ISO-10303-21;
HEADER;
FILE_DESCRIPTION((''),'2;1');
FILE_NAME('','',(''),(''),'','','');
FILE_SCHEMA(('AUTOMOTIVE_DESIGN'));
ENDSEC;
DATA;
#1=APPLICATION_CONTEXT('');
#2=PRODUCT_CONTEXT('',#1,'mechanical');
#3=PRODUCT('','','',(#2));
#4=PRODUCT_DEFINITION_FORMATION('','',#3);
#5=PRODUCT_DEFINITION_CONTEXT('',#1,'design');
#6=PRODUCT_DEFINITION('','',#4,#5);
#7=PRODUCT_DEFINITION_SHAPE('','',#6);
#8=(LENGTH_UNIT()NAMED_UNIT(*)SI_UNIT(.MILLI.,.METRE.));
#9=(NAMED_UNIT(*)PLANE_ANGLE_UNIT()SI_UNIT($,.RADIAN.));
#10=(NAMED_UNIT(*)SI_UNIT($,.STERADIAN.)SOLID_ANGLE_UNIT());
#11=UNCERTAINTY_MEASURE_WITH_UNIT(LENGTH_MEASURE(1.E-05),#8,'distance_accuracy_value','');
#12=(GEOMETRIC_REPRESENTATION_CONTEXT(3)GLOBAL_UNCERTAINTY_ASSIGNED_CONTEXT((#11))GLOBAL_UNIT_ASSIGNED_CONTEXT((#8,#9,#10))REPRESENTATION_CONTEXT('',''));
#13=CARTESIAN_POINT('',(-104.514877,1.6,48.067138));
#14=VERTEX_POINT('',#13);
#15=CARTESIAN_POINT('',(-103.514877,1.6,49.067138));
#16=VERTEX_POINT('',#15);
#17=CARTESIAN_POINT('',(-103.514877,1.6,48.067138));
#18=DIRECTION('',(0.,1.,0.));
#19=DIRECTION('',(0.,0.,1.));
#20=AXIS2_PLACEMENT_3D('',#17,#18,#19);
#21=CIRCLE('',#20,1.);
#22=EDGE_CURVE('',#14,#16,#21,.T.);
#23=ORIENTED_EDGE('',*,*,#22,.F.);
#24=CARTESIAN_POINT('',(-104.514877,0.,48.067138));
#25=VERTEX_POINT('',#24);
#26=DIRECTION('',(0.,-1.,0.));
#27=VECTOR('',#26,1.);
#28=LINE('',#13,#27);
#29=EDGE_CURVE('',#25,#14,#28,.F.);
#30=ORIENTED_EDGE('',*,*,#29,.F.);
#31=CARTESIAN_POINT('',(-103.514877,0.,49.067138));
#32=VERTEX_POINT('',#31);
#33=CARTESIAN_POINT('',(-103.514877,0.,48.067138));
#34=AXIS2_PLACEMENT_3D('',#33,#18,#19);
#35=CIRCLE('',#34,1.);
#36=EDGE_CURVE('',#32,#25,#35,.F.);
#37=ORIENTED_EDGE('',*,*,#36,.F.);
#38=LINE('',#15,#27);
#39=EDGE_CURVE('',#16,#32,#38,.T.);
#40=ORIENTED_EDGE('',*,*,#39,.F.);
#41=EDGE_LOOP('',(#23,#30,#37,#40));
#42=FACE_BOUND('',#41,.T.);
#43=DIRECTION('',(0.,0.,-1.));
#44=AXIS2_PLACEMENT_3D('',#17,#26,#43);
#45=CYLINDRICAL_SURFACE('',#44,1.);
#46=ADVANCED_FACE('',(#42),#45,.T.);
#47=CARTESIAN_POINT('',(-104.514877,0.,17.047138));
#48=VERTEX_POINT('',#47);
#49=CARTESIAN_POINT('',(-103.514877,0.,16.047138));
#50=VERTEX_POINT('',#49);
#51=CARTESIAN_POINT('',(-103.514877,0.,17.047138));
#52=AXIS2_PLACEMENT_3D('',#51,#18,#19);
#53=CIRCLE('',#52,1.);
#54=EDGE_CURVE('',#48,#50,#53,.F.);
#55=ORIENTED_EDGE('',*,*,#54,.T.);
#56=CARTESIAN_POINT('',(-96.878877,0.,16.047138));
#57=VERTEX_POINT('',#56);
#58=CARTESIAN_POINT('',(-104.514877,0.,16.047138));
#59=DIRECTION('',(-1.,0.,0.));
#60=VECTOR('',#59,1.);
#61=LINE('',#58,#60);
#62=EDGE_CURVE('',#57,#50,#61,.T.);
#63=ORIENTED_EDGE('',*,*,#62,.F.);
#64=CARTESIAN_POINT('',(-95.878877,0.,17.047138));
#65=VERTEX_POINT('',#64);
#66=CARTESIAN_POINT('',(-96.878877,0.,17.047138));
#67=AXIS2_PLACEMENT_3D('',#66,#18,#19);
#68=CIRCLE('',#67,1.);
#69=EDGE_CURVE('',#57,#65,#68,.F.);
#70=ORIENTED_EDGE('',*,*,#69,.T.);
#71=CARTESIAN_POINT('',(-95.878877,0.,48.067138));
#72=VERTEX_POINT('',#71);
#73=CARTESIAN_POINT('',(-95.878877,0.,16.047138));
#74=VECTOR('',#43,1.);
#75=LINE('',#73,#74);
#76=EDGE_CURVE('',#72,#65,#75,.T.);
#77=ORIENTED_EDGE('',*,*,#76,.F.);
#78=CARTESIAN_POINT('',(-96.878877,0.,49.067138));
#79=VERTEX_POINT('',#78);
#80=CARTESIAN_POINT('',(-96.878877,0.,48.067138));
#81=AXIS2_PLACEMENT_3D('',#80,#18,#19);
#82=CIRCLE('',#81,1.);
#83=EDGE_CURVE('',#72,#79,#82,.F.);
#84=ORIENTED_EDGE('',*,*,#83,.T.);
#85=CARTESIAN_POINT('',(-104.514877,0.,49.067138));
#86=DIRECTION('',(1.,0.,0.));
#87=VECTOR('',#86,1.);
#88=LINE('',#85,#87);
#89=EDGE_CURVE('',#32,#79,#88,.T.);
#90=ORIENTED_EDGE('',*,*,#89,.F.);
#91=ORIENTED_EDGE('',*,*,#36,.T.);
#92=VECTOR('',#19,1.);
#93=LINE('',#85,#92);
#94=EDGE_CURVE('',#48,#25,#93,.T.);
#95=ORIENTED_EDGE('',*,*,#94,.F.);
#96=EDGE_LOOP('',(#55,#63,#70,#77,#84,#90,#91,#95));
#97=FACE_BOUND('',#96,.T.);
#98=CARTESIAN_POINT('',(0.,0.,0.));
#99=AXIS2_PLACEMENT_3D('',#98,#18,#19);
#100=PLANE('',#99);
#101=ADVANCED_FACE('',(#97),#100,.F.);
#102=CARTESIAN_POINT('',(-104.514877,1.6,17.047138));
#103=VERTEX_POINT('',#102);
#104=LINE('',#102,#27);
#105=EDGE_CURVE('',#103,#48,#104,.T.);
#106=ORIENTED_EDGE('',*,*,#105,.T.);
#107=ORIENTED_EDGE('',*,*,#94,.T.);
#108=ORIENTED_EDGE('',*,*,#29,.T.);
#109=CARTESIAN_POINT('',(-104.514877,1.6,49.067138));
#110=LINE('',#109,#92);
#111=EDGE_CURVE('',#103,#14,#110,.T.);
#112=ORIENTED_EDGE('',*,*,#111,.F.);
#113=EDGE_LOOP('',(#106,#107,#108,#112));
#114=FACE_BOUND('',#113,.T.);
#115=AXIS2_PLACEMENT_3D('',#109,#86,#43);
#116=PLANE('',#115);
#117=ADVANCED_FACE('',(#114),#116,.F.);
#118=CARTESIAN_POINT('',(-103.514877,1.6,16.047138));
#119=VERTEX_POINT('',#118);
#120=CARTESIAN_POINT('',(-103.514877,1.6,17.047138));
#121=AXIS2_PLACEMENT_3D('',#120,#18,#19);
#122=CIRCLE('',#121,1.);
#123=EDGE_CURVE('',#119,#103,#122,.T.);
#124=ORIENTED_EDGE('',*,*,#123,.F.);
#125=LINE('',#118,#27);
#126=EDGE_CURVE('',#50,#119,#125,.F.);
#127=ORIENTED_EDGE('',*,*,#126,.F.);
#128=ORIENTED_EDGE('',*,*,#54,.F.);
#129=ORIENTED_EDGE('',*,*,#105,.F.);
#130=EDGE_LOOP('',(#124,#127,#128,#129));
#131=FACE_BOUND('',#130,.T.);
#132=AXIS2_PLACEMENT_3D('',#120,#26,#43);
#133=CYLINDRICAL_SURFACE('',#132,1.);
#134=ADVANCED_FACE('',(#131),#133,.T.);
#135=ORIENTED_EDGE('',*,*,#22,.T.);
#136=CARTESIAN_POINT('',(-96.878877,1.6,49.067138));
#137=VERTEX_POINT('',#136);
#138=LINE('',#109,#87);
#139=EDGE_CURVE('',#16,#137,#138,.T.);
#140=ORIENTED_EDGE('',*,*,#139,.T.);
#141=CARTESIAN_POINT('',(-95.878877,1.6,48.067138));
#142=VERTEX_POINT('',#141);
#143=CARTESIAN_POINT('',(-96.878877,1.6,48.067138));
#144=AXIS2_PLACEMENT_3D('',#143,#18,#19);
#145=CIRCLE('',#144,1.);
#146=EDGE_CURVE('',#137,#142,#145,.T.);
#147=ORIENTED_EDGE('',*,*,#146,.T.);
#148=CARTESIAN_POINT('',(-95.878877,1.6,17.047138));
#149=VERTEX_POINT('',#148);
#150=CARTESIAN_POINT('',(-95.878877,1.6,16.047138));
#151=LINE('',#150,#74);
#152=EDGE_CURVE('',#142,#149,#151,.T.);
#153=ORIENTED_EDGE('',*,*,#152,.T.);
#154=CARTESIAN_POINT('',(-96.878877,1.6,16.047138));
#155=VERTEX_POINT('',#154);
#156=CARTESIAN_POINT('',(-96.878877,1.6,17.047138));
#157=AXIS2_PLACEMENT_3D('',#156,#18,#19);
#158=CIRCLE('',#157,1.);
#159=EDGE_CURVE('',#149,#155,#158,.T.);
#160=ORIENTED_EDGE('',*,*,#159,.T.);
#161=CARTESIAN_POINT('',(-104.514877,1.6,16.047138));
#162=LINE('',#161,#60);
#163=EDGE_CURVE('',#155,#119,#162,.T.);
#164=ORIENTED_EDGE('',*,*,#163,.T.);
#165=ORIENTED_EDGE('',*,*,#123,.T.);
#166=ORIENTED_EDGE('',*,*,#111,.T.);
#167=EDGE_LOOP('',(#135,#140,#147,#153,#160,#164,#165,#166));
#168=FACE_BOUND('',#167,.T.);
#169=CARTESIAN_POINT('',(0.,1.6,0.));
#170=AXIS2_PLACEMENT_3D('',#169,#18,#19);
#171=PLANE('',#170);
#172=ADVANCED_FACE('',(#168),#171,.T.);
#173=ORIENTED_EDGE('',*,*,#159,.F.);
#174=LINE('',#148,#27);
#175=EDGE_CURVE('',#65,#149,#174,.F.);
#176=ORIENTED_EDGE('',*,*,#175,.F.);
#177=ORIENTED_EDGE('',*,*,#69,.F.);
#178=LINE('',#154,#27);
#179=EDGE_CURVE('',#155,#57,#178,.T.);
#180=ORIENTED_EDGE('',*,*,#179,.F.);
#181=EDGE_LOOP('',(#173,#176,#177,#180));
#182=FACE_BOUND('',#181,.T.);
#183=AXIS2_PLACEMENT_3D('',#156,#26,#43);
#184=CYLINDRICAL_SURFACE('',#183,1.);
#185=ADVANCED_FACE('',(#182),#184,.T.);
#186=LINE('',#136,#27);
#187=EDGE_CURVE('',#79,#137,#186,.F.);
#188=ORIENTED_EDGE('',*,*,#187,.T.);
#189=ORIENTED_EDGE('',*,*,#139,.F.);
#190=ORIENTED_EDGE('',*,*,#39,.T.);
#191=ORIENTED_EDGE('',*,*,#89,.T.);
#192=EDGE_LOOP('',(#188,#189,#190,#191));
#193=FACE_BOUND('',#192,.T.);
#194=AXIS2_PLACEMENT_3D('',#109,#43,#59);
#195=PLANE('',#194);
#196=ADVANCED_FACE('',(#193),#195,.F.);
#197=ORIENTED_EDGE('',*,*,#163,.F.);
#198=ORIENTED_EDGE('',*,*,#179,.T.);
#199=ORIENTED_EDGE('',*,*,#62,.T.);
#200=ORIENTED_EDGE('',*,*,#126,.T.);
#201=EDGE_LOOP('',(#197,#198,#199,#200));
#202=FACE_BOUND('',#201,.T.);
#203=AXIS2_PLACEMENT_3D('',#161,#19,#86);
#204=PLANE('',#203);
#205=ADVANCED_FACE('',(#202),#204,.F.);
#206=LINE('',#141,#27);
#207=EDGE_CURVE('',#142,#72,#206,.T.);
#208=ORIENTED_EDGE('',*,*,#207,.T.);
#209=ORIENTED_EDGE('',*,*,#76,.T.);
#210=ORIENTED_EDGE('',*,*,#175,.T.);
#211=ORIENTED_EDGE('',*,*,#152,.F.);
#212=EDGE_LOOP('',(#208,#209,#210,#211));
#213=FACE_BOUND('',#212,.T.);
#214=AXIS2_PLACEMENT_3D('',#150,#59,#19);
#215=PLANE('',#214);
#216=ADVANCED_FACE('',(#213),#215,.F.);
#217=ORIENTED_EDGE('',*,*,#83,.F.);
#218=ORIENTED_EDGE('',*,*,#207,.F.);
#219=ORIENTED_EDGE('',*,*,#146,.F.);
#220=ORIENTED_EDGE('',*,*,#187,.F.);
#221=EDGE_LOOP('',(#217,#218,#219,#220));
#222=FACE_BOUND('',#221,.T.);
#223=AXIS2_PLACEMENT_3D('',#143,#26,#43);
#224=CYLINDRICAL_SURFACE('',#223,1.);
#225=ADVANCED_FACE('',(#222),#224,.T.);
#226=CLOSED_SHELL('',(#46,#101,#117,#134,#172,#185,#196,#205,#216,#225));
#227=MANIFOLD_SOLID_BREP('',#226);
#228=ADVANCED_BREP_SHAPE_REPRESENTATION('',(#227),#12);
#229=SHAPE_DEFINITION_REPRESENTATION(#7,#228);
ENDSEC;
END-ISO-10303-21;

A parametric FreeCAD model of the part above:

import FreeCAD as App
import Part
import Sketcher

V = App.Vector


def edges_at(feature, points):
    """Names of the edges that pass closest to the given points."""
    edges = feature.Shape.Edges
    near = lambda p: min(range(len(edges)), key=lambda i: edges[i].distToShape(Part.Vertex(*p))[0])
    return sorted({f"Edge{near(p) + 1}" for p in points})

doc = App.newDocument("Part")
params = doc.addObject("Spreadsheet::Sheet", "Params")
for row, (alias, value) in enumerate([
    ("sketch1_height", "33.02 mm"),
    ("pad1_length", "1.6 mm"),
    ("fillet_radius", "1 mm"),
], start=1):
    params.set(f"A{row}", alias)
    params.set(f"B{row}", "=" + value)
    params.setAlias(f"B{row}", alias)

body = doc.addObject("PartDesign::Body", "Body")

sketch1 = body.newObject("Sketcher::SketchObject", "Sketch")
sketch1.AttachmentSupport = (doc.getObject("XZ_Plane"), [""])
sketch1.MapMode = "FlatFace"
sketch1.addGeometry([
    Part.LineSegment(V(-104.514877, 16.047138, 0), V(-104.514877, 49.067138, 0)),
    Part.LineSegment(V(-104.514877, 49.067138, 0), V(-95.878877, 49.067138, 0)),
    Part.LineSegment(V(-95.878877, 49.067138, 0), V(-95.878877, 16.047138, 0)),
    Part.LineSegment(V(-95.878877, 16.047138, 0), V(-104.514877, 16.047138, 0)),
], False)
sketch1.addConstraint([
    Sketcher.Constraint("Coincident", 0, 2, 1, 1),
    Sketcher.Constraint("Coincident", 1, 2, 2, 1),
    Sketcher.Constraint("Coincident", 2, 2, 3, 1),
    Sketcher.Constraint("Coincident", 3, 2, 0, 1),
    Sketcher.Constraint("Vertical", 0),
    Sketcher.Constraint("Horizontal", 1),
    Sketcher.Constraint("Vertical", 2),
    Sketcher.Constraint("Horizontal", 3),
    Sketcher.Constraint("DistanceY", 0, 1, 0, 2, 33.02),
    Sketcher.Constraint("DistanceX", 1, 1, 1, 2, 8.636),
    Sketcher.Constraint("DistanceY", -1, 1, 0, 2, 49.067138),
    Sketcher.Constraint("DistanceX", 0, 2, -1, 1, 104.514877),
])
sketch1.setExpression("Constraints[8]", "Params.sketch1_height")
pad1 = body.newObject("PartDesign::Pad", "Pad")
pad1.Profile = sketch1
pad1.setExpression("Length", "Params.pad1_length")
pad1.Reversed = True
doc.recompute()

fillet = body.newObject("PartDesign::Fillet", "Fillet")
fillet.Base = (pad1, edges_at(pad1, [
    (-95.879, 0.8, 49.067),
    (-104.515, 0.8, 49.067),
    (-104.515, 0.8, 16.047),
    (-95.879, 0.8, 16.047),
]))
fillet.setExpression("Radius", "Params.fillet_radius")

doc.recompute()
